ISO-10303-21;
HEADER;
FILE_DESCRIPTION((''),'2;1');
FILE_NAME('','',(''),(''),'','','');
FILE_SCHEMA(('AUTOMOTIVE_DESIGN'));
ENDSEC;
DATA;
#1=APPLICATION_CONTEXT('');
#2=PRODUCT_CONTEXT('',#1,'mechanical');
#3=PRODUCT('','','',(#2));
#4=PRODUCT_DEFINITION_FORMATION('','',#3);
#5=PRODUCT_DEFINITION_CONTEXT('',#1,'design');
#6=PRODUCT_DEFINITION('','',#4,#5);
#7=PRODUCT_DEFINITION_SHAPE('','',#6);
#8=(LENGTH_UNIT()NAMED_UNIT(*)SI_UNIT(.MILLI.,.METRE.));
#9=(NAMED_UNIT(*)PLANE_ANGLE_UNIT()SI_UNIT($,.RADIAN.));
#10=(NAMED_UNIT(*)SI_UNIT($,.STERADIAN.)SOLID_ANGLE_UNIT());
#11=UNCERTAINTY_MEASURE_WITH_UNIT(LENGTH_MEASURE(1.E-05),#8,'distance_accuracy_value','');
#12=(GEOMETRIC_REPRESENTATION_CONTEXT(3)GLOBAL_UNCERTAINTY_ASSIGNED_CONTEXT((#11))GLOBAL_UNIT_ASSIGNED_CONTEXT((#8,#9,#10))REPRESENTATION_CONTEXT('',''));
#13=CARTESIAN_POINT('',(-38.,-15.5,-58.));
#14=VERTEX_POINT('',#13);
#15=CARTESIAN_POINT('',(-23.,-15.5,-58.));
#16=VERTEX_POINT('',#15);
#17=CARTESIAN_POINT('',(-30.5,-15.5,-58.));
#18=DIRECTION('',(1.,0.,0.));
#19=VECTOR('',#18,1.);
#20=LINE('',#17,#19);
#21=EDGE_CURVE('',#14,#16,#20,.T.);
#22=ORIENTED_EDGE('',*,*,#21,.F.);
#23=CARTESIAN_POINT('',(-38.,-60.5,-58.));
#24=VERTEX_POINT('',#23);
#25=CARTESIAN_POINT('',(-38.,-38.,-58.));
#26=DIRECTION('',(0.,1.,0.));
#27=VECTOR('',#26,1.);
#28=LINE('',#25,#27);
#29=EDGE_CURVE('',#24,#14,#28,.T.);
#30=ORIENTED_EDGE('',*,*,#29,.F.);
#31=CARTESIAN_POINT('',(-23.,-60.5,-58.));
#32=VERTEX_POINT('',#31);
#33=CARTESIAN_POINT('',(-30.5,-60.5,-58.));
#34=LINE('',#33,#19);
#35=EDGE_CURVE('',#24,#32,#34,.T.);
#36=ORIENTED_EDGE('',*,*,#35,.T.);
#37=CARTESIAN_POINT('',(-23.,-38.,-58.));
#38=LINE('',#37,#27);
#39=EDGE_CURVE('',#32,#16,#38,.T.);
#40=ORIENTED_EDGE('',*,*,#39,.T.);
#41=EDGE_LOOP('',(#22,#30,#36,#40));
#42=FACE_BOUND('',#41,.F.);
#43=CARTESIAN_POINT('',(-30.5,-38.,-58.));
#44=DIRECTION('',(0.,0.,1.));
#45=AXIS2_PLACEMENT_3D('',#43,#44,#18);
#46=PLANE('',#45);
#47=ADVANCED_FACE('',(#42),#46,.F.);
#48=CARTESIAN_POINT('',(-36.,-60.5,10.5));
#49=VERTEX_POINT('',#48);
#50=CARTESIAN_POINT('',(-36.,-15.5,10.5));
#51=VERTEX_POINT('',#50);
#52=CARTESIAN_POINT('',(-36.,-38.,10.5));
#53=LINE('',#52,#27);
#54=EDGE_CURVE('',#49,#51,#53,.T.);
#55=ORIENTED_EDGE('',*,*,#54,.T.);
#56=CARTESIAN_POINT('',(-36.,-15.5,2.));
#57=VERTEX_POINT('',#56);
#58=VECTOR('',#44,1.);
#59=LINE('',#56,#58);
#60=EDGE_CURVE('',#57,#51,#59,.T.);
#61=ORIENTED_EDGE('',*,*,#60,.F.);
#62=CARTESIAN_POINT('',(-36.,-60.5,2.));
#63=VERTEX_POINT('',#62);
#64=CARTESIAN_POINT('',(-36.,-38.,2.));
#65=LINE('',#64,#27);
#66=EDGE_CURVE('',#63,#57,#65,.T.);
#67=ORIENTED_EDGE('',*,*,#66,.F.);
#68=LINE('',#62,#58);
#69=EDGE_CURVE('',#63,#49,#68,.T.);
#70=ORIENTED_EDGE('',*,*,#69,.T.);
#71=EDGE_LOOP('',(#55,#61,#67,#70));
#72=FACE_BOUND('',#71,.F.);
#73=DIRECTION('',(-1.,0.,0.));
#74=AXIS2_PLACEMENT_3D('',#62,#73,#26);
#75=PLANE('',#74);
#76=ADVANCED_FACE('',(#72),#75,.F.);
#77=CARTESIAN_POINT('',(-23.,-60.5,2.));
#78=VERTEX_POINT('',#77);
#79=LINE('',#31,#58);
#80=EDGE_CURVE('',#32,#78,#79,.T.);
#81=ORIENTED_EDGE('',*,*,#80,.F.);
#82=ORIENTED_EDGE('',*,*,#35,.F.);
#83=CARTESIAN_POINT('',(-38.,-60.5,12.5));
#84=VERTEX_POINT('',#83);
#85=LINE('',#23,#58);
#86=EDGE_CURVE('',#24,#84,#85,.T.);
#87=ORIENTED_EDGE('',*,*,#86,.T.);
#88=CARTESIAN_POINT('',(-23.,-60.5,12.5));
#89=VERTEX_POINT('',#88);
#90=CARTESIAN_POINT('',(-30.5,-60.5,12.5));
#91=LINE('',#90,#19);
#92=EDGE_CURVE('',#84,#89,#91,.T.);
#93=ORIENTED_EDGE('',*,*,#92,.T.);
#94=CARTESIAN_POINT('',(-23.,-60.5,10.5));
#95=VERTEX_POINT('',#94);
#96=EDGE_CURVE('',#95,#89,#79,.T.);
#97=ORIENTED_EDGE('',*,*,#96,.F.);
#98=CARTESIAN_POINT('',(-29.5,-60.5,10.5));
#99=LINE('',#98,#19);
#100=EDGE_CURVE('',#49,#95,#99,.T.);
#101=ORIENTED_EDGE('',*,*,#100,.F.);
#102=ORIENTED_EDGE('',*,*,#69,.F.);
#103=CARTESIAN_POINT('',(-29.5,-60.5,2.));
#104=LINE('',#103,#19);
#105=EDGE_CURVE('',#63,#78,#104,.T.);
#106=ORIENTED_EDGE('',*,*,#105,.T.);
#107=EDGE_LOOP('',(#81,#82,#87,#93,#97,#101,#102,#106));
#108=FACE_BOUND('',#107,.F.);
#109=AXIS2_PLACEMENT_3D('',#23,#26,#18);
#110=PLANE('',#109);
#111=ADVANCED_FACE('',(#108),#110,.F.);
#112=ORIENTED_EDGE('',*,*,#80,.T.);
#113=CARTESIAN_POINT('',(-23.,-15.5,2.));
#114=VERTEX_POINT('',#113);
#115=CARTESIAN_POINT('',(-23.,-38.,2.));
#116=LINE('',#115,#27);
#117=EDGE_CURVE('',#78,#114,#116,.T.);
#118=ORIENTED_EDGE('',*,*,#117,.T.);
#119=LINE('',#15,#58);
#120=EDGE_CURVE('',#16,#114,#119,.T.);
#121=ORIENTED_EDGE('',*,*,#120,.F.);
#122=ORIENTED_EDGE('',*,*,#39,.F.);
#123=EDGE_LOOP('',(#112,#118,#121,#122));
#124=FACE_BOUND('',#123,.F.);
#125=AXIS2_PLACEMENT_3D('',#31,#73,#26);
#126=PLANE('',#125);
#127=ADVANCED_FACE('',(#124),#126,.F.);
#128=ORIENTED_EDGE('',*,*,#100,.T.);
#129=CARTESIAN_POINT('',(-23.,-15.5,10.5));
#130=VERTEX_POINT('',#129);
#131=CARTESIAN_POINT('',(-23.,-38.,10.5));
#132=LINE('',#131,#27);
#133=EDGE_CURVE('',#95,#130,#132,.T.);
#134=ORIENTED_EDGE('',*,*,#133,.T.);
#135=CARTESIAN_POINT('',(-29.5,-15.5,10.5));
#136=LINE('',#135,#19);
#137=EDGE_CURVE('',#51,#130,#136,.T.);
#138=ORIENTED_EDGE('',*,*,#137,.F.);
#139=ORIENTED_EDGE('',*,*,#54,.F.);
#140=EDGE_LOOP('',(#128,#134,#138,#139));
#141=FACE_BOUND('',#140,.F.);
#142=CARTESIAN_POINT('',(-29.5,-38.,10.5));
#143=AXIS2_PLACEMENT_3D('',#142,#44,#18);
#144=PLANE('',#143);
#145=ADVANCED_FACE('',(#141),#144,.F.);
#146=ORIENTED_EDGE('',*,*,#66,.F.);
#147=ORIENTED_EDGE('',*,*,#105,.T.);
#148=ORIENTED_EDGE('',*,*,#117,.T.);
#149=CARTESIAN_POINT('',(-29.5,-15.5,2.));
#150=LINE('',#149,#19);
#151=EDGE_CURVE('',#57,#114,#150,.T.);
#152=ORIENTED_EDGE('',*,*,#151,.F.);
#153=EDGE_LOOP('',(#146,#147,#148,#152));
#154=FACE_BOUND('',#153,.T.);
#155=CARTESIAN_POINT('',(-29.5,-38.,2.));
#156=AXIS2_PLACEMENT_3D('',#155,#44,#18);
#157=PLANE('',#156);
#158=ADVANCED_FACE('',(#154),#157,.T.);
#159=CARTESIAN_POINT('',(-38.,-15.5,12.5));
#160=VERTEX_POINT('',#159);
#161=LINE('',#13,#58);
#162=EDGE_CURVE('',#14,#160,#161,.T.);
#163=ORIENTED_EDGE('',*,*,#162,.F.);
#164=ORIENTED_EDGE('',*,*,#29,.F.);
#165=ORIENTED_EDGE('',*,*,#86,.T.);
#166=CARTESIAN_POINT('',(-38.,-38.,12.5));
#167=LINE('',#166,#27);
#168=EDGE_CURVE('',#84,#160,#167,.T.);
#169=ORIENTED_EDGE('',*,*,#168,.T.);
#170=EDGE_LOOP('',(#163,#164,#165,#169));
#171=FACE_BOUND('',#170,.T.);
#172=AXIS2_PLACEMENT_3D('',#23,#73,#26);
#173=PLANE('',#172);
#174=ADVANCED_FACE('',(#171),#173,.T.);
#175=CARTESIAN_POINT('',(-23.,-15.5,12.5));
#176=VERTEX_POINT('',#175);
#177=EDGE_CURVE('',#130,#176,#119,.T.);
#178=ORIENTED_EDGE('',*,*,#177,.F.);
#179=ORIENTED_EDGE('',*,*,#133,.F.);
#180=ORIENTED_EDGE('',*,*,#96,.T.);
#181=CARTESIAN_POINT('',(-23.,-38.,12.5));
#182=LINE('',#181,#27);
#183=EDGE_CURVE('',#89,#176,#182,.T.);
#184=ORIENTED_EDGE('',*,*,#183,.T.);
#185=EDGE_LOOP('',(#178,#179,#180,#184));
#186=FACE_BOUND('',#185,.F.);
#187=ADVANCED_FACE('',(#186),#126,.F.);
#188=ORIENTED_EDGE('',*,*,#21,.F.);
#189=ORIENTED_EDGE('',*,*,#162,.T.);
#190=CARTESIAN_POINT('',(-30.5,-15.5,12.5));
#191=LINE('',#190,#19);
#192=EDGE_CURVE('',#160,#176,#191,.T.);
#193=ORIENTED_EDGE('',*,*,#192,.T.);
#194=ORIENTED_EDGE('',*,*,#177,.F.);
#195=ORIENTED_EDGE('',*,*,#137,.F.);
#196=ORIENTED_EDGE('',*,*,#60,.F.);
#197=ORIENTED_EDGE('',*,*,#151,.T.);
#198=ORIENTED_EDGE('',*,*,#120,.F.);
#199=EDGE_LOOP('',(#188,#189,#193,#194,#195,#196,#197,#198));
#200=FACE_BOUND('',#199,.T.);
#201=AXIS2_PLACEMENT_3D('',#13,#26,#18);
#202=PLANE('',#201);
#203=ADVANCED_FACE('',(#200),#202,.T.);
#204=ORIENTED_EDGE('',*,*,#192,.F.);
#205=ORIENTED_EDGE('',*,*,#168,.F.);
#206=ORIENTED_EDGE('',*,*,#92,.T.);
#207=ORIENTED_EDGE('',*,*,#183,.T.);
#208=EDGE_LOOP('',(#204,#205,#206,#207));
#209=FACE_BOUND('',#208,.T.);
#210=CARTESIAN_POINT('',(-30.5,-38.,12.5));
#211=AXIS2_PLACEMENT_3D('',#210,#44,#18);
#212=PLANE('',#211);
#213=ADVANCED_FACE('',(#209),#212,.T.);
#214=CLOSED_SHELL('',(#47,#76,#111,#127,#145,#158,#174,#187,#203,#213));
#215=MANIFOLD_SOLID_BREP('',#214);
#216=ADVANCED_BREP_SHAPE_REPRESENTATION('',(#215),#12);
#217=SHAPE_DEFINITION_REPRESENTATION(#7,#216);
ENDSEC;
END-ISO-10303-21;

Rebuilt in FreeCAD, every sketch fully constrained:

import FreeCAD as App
import Part
import Sketcher

V = App.Vector
Q = App.Units.Quantity

doc = App.newDocument("Part")
body = doc.addObject("PartDesign::Body", "Body")

sketch1 = body.newObject("Sketcher::SketchObject", "Sketch")
sketch1.AttachmentSupport = (doc.getObject("XY_Plane"), [""])
sketch1.MapMode = "FlatFace"
sketch1.addGeometry([
    Part.LineSegment(V(-35, 6, 0), V(-35, -39, 0)),
    Part.LineSegment(V(-35, -39, 0), V(-22, -39, 0)),
    Part.LineSegment(V(-22, -39, 0), V(-22, 6, 0)),
    Part.LineSegment(V(-22, 6, 0), V(-35, 6, 0)),
], False)
sketch1.addConstraint([
    Sketcher.Constraint("Coincident", 0, 2, 1, 1),
    Sketcher.Constraint("Coincident", 1, 2, 2, 1),
    Sketcher.Constraint("Coincident", 2, 2, 3, 1),
    Sketcher.Constraint("Coincident", 3, 2, 0, 1),
    Sketcher.Constraint("Vertical", 0),
    Sketcher.Constraint("Horizontal", 1),
    Sketcher.Constraint("Vertical", 2),
    Sketcher.Constraint("Horizontal", 3),
    Sketcher.Constraint("DistanceX", 1, 1, 1, 2, Q("13 mm")),
    Sketcher.Constraint("DistanceY", 0, 2, 0, 1, Q("45 mm")),
    Sketcher.Constraint("DistanceX", 0, 2, -1, 1, Q("35 mm")),
    Sketcher.Constraint("DistanceY", 0, 2, -1, 1, Q("39 mm")),
])
pad1 = body.newObject("PartDesign::Pad", "Pad")
pad1.Profile = sketch1
pad1.Length = 8.5
body2 = doc.addObject("PartDesign::Body", "Body001")
doc.recompute()

body.Placement = App.Placement(V(-1, -21.5, 2), App.Rotation(V(0, 0, 1), 0))
boolean = body2.newObject("PartDesign::Boolean", "Boolean")
boolean.Type = "Fuse"
boolean.addObjects([body])
body3 = doc.addObject("PartDesign::Body", "Body002")

sketch2 = body3.newObject("Sketcher::SketchObject", "Sketch001")
sketch2.AttachmentSupport = (doc.getObject("XY_Plane002"), [""])
sketch2.MapMode = "FlatFace"
sketch2.addGeometry([
    Part.LineSegment(V(-35, 6, 0), V(-35, -39, 0)),
    Part.LineSegment(V(-35, -39, 0), V(-20, -39, 0)),
    Part.LineSegment(V(-20, -39, 0), V(-20, 6, 0)),
    Part.LineSegment(V(-20, 6, 0), V(-35, 6, 0)),
], False)
sketch2.addConstraint([
    Sketcher.Constraint("Coincident", 0, 2, 1, 1),
    Sketcher.Constraint("Coincident", 1, 2, 2, 1),
    Sketcher.Constraint("Coincident", 2, 2, 3, 1),
    Sketcher.Constraint("Coincident", 3, 2, 0, 1),
    Sketcher.Constraint("Vertical", 0),
    Sketcher.Constraint("Horizontal", 1),
    Sketcher.Constraint("Vertical", 2),
    Sketcher.Constraint("Horizontal", 3),
    Sketcher.Constraint("DistanceX", 1, 1, 1, 2, Q("15 mm")),
    Sketcher.Constraint("DistanceY", 0, 2, 0, 1, Q("45 mm")),
    Sketcher.Constraint("DistanceX", 0, 2, -1, 1, Q("35 mm")),
    Sketcher.Constraint("DistanceY", 0, 2, -1, 1, Q("39 mm")),
])
pad2 = body3.newObject("PartDesign::Pad", "Pad001")
pad2.Profile = sketch2
pad2.Length = 70.5
body4 = doc.addObject("PartDesign::Body", "Body003")
doc.recompute()

body3.Placement = App.Placement(V(-3, -21.5, -58), App.Rotation(V(0, 0, 1), 0))
boolean2 = body4.newObject("PartDesign::Boolean", "Boolean001")
boolean2.Type = "Fuse"
boolean2.addObjects([body3])
doc.recompute()

boolean3 = body4.newObject("PartDesign::Boolean", "Boolean002")
boolean3.Type = "Cut"
boolean3.addObjects([body2])

doc.recompute()
